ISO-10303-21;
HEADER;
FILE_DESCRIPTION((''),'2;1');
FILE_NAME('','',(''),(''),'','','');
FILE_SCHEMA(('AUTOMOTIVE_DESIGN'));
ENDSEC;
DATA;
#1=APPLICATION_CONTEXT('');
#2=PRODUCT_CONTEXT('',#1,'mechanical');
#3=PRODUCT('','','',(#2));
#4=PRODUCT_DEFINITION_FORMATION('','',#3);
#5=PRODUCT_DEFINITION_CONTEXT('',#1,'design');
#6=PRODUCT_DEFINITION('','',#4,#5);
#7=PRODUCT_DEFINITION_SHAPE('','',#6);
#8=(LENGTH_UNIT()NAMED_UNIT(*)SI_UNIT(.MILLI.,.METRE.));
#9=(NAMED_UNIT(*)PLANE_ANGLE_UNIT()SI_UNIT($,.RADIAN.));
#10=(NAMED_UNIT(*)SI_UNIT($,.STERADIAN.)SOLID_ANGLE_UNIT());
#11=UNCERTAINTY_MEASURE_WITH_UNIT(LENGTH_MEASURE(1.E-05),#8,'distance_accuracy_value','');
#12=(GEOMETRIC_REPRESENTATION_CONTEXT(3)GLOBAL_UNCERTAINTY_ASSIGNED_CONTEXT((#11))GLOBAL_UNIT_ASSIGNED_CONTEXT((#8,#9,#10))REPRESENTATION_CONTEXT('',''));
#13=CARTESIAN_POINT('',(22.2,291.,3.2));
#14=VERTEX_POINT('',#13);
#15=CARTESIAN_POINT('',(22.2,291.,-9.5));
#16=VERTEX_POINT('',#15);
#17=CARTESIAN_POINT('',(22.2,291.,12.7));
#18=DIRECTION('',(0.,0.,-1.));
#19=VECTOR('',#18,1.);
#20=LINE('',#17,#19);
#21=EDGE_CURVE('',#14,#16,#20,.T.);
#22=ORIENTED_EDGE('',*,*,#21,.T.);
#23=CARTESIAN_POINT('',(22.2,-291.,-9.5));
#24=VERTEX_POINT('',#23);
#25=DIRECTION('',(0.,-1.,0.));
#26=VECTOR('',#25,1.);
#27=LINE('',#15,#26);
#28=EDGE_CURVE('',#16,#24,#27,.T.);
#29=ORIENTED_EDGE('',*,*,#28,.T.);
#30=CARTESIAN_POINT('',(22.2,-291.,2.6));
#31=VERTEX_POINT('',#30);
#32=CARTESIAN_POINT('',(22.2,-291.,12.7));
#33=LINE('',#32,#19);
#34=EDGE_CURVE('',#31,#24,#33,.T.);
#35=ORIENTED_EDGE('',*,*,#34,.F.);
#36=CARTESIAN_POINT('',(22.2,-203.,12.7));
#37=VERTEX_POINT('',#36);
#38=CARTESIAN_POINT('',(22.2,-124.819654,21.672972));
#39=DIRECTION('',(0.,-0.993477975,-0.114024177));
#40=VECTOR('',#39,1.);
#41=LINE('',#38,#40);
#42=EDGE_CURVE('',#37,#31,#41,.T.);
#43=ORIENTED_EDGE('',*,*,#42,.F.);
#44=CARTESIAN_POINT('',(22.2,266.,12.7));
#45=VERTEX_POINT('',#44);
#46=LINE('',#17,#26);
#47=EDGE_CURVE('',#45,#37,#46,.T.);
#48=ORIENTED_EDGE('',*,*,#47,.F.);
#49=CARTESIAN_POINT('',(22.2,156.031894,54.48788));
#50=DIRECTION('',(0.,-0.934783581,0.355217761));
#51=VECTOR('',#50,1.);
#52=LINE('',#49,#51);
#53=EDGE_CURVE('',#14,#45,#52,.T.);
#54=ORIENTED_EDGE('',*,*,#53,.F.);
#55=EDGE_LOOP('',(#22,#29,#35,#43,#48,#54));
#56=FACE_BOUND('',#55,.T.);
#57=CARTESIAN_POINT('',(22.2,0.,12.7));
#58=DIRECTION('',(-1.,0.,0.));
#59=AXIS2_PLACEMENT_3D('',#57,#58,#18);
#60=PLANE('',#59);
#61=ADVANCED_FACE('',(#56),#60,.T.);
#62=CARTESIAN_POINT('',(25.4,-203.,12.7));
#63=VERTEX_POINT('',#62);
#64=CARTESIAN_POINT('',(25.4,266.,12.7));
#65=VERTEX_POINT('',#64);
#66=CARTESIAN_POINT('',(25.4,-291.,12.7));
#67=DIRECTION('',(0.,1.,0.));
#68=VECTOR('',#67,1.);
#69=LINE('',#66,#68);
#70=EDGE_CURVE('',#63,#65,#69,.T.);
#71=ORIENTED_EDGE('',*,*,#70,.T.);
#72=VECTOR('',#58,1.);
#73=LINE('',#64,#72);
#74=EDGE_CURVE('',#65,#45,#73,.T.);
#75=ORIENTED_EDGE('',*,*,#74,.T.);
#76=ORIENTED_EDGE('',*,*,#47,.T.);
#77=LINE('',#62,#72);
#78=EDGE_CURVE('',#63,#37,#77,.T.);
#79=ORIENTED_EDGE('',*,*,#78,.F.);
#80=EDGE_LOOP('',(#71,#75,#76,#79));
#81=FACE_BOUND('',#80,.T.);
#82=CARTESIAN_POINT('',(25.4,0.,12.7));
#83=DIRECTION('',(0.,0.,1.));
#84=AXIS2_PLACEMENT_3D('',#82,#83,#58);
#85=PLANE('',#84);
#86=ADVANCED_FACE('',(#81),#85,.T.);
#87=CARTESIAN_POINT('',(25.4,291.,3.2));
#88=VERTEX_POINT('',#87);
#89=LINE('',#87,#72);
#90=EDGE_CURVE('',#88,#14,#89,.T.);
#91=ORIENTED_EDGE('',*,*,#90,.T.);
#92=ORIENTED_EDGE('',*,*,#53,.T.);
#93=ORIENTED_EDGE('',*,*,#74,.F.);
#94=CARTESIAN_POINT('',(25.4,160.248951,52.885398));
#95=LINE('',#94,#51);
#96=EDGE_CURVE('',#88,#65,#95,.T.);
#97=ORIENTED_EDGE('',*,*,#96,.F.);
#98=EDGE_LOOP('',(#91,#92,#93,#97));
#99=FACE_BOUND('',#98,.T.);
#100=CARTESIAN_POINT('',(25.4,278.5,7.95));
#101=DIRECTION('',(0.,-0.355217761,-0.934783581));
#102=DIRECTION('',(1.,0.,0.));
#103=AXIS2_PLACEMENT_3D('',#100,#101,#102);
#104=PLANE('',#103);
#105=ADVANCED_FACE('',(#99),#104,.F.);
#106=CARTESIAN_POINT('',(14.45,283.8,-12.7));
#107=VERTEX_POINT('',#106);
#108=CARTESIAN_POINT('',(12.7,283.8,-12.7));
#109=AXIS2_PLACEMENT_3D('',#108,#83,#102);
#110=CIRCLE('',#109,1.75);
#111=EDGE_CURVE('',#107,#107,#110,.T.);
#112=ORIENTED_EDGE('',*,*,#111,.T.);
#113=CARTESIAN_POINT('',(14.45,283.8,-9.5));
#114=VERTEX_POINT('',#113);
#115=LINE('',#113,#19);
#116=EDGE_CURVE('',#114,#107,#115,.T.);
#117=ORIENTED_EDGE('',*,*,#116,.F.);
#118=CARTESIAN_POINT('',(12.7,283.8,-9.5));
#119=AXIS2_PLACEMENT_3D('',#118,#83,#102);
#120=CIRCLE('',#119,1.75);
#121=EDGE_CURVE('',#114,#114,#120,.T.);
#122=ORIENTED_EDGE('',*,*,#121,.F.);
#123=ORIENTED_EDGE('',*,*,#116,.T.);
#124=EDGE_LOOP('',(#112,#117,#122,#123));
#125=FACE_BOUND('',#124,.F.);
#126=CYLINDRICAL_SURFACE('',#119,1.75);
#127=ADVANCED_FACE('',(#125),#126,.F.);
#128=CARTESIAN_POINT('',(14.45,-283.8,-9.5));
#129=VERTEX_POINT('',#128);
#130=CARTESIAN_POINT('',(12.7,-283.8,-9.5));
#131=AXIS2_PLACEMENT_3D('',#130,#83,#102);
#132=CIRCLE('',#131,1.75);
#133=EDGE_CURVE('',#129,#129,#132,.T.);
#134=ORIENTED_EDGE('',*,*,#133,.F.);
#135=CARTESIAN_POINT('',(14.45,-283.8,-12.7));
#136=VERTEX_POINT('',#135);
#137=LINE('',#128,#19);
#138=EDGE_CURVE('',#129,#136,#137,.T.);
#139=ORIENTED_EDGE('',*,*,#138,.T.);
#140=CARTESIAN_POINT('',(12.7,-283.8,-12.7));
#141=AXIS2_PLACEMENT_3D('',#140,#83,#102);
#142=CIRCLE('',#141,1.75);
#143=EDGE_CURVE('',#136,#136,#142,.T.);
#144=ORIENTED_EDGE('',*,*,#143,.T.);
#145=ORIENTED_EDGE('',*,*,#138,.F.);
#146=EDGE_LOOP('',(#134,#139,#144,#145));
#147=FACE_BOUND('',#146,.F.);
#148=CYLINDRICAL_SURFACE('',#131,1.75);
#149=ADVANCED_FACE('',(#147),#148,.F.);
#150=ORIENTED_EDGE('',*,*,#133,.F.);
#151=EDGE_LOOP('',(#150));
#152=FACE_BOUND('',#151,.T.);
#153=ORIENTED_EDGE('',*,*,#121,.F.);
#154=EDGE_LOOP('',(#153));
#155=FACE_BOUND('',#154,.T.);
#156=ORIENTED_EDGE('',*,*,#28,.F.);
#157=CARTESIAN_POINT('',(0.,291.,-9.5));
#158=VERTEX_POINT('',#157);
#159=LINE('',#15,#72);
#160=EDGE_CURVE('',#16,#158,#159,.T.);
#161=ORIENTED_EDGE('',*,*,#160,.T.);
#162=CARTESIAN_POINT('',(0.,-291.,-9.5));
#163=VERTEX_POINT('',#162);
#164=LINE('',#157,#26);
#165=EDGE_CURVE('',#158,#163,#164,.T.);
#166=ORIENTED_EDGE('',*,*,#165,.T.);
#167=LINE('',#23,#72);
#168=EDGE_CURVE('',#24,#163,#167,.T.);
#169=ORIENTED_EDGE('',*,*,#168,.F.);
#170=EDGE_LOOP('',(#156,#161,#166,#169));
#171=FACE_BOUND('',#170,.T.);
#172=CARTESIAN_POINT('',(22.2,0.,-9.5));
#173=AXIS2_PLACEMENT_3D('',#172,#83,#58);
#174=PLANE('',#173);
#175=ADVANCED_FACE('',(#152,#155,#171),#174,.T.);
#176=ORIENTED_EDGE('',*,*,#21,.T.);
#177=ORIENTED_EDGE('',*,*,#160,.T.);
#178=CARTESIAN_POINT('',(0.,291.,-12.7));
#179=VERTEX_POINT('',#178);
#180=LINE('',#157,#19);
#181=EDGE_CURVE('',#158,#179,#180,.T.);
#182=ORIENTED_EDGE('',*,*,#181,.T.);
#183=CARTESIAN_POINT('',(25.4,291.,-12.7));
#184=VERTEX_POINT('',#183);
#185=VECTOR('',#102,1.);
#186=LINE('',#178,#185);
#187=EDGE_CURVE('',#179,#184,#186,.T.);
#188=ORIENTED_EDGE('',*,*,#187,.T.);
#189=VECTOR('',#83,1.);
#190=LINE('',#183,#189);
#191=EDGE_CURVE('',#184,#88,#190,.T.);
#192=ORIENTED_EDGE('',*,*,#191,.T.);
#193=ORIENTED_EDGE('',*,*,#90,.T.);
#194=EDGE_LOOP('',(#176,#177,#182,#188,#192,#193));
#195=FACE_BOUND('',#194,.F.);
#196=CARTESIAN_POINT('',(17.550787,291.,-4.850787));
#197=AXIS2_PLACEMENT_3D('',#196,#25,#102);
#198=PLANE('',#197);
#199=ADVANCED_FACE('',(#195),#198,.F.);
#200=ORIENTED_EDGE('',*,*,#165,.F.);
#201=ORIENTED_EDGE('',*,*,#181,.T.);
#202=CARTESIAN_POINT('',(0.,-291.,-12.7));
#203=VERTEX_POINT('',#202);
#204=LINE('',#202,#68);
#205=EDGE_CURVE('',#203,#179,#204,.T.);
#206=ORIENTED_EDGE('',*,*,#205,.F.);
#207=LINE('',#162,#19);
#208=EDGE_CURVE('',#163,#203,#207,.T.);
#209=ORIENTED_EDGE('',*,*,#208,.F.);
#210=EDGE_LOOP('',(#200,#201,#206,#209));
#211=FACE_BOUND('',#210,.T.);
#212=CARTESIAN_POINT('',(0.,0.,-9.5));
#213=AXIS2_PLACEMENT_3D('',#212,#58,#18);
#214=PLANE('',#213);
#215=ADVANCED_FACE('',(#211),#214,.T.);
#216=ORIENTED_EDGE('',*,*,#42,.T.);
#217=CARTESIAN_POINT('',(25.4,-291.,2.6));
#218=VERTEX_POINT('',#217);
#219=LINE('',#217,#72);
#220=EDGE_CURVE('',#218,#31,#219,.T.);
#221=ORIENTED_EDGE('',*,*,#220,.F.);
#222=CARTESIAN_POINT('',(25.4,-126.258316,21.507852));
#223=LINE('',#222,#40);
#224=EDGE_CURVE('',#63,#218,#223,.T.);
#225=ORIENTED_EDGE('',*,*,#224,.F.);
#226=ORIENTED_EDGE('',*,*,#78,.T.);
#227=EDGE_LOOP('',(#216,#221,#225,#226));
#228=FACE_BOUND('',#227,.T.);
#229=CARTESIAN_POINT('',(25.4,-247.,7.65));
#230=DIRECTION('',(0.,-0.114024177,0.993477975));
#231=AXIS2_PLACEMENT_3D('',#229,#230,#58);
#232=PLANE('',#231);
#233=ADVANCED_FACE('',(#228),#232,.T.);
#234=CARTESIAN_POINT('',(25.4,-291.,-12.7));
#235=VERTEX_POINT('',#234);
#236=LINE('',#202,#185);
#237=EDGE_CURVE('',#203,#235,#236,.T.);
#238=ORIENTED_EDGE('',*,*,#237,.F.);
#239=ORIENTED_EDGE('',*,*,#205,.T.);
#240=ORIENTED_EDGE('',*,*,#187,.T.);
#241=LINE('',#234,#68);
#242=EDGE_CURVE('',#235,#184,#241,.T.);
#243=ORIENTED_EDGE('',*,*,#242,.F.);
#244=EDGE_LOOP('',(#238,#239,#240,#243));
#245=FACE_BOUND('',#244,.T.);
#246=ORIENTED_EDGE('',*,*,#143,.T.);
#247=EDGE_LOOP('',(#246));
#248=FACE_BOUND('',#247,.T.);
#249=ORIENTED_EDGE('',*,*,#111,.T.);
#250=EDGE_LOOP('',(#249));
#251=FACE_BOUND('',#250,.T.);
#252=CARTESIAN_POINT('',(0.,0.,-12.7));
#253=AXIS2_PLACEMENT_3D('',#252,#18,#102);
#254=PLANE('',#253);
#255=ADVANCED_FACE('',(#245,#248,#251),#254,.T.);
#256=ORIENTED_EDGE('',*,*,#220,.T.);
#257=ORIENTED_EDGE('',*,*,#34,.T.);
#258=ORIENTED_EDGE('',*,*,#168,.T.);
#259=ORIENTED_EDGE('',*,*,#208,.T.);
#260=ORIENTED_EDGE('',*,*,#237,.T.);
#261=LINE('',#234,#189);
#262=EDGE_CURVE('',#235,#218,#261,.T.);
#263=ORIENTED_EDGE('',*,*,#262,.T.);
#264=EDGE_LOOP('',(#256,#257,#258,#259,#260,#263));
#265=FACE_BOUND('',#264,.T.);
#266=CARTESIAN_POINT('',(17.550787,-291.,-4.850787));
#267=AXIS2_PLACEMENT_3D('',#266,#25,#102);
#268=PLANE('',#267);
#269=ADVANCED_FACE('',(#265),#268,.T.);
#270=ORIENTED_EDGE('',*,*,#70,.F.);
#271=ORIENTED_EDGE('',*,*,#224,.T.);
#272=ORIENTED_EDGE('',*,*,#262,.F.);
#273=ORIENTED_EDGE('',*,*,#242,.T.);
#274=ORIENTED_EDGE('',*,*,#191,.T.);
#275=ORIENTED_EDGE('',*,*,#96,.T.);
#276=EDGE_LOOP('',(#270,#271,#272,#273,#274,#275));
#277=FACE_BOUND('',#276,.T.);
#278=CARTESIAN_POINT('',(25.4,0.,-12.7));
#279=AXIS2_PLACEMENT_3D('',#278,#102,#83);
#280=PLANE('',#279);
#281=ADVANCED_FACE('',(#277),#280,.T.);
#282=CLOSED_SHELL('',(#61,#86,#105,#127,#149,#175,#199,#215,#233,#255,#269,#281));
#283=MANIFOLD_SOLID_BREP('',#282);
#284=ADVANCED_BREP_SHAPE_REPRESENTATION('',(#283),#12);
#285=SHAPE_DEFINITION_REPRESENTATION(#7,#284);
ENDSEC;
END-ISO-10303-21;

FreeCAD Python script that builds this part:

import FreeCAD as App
import Part
import Sketcher

V = App.Vector
Q = App.Units.Quantity


def edges_at(feature, points):
    """Names of the edges that pass closest to the given points."""
    edges = feature.Shape.Edges
    near = lambda p: min(range(len(edges)), key=lambda i: edges[i].distToShape(Part.Vertex(*p))[0])
    return sorted({f"Edge{near(p) + 1}" for p in points})


def add_polygon(sketch, points):
    """Adds a closed chain of lines whose ends are joined by coincident constraints."""
    first, n = sketch.GeometryCount, len(points)
    for a, b in zip(points, points[1:] + points[:1]):
        sketch.addGeometry(Part.LineSegment(App.Vector(*a, 0), App.Vector(*b, 0)), False)
    for i in range(n):
        sketch.addConstraint(Sketcher.Constraint("Coincident", first + i, 2, first + (i + 1) % n, 1))

doc = App.newDocument("Part")
body = doc.addObject("PartDesign::Body", "Body")

# Sketch on XZ plane
sketch1 = body.newObject("Sketcher::SketchObject", "Sketch")
sketch1.AttachmentSupport = (doc.getObject("XZ_Plane"), [""])
sketch1.MapMode = "FlatFace"
add_polygon(sketch1, [(25.4, 12.7), (22.2, 12.7), (22.2, -9.5), (0, -9.5), (0, -12.7), (25.4, -12.7)])  # lines 0-5
sketch1.addConstraint(Sketcher.Constraint("Horizontal", 0))
sketch1.addConstraint(Sketcher.Constraint("Vertical", 1))
sketch1.addConstraint(Sketcher.Constraint("Horizontal", 2))
sketch1.addConstraint(Sketcher.Constraint("Vertical", 3))
sketch1.addConstraint(Sketcher.Constraint("Horizontal", 4))
sketch1.addConstraint(Sketcher.Constraint("Vertical", 5))
sketch1.addConstraint(Sketcher.Constraint("PointOnObject", 2, 2, -2))
sketch1.addConstraint(Sketcher.Constraint("Equal", 2, 1))
sketch1.addConstraint(Sketcher.Constraint("Equal", 0, 3))
sketch1.addConstraint(Sketcher.Constraint("DistanceX", 0, 2, 0, 1, Q("3.2 mm")))
sketch1.addConstraint(Sketcher.Constraint("DistanceX", 2, 2, 2, 1, Q("22.2 mm")))
sketch1.addConstraint(Sketcher.Constraint("DistanceY", -1, 1, 0, 2, Q("12.7 mm")))
pad1 = body.newObject("PartDesign::Pad", "Pad")
pad1.Profile = sketch1
pad1.Length = 582
pad1.Midplane = True
doc.recompute()

chamfer = body.newObject("PartDesign::Chamfer", "Chamfer")
chamfer.Base = (pad1, edges_at(pad1, [(23.8, 291, 12.7)]))
chamfer.ChamferType = "Two distances"
chamfer.Size = 9.5
chamfer.Size2 = 25
chamfer.FlipDirection = True
doc.recompute()

chamfer2 = body.newObject("PartDesign::Chamfer", "Chamfer001")
chamfer2.Base = (chamfer, edges_at(chamfer, [(23.8, -291, 12.7)]))
chamfer2.ChamferType = "Two distances"
chamfer2.Size = 88
chamfer2.Size2 = 10.1

# Sketch on XY plane
sketch2 = body.newObject("Sketcher::SketchObject", "Sketch001")
sketch2.AttachmentSupport = (doc.getObject("XY_Plane"), [""])
sketch2.MapMode = "FlatFace"
sketch2.AttachmentOffset = App.Placement(V(0, 0, -9.5), App.Rotation())
sketch2.addGeometry(Part.Circle(V(12.7, -283.8, 0), V(0, 0, 1), 1.8), False)
sketch2.addGeometry(Part.Circle(V(12.7, 283.8, 0), V(0, 0, 1), 1.8), False)
sketch2.addConstraint(Sketcher.Constraint("Equal", 0, 1))
sketch2.addConstraint(Sketcher.Constraint("Symmetric", 0, 3, 1, 3, -1))
sketch2.addConstraint(Sketcher.Constraint("Diameter", 0, Q("3.5 mm")))
sketch2.addConstraint(Sketcher.Constraint("DistanceX", -1, 1, 0, 3, Q("12.7 mm")))
sketch2.addConstraint(Sketcher.Constraint("DistanceY", 0, 3, -1, 1, Q("283.8 mm")))
pocket1 = body.newObject("PartDesign::Pocket", "Pocket")
pocket1.Profile = sketch2
pocket1.Type = "ThroughAll"

doc.recompute()
